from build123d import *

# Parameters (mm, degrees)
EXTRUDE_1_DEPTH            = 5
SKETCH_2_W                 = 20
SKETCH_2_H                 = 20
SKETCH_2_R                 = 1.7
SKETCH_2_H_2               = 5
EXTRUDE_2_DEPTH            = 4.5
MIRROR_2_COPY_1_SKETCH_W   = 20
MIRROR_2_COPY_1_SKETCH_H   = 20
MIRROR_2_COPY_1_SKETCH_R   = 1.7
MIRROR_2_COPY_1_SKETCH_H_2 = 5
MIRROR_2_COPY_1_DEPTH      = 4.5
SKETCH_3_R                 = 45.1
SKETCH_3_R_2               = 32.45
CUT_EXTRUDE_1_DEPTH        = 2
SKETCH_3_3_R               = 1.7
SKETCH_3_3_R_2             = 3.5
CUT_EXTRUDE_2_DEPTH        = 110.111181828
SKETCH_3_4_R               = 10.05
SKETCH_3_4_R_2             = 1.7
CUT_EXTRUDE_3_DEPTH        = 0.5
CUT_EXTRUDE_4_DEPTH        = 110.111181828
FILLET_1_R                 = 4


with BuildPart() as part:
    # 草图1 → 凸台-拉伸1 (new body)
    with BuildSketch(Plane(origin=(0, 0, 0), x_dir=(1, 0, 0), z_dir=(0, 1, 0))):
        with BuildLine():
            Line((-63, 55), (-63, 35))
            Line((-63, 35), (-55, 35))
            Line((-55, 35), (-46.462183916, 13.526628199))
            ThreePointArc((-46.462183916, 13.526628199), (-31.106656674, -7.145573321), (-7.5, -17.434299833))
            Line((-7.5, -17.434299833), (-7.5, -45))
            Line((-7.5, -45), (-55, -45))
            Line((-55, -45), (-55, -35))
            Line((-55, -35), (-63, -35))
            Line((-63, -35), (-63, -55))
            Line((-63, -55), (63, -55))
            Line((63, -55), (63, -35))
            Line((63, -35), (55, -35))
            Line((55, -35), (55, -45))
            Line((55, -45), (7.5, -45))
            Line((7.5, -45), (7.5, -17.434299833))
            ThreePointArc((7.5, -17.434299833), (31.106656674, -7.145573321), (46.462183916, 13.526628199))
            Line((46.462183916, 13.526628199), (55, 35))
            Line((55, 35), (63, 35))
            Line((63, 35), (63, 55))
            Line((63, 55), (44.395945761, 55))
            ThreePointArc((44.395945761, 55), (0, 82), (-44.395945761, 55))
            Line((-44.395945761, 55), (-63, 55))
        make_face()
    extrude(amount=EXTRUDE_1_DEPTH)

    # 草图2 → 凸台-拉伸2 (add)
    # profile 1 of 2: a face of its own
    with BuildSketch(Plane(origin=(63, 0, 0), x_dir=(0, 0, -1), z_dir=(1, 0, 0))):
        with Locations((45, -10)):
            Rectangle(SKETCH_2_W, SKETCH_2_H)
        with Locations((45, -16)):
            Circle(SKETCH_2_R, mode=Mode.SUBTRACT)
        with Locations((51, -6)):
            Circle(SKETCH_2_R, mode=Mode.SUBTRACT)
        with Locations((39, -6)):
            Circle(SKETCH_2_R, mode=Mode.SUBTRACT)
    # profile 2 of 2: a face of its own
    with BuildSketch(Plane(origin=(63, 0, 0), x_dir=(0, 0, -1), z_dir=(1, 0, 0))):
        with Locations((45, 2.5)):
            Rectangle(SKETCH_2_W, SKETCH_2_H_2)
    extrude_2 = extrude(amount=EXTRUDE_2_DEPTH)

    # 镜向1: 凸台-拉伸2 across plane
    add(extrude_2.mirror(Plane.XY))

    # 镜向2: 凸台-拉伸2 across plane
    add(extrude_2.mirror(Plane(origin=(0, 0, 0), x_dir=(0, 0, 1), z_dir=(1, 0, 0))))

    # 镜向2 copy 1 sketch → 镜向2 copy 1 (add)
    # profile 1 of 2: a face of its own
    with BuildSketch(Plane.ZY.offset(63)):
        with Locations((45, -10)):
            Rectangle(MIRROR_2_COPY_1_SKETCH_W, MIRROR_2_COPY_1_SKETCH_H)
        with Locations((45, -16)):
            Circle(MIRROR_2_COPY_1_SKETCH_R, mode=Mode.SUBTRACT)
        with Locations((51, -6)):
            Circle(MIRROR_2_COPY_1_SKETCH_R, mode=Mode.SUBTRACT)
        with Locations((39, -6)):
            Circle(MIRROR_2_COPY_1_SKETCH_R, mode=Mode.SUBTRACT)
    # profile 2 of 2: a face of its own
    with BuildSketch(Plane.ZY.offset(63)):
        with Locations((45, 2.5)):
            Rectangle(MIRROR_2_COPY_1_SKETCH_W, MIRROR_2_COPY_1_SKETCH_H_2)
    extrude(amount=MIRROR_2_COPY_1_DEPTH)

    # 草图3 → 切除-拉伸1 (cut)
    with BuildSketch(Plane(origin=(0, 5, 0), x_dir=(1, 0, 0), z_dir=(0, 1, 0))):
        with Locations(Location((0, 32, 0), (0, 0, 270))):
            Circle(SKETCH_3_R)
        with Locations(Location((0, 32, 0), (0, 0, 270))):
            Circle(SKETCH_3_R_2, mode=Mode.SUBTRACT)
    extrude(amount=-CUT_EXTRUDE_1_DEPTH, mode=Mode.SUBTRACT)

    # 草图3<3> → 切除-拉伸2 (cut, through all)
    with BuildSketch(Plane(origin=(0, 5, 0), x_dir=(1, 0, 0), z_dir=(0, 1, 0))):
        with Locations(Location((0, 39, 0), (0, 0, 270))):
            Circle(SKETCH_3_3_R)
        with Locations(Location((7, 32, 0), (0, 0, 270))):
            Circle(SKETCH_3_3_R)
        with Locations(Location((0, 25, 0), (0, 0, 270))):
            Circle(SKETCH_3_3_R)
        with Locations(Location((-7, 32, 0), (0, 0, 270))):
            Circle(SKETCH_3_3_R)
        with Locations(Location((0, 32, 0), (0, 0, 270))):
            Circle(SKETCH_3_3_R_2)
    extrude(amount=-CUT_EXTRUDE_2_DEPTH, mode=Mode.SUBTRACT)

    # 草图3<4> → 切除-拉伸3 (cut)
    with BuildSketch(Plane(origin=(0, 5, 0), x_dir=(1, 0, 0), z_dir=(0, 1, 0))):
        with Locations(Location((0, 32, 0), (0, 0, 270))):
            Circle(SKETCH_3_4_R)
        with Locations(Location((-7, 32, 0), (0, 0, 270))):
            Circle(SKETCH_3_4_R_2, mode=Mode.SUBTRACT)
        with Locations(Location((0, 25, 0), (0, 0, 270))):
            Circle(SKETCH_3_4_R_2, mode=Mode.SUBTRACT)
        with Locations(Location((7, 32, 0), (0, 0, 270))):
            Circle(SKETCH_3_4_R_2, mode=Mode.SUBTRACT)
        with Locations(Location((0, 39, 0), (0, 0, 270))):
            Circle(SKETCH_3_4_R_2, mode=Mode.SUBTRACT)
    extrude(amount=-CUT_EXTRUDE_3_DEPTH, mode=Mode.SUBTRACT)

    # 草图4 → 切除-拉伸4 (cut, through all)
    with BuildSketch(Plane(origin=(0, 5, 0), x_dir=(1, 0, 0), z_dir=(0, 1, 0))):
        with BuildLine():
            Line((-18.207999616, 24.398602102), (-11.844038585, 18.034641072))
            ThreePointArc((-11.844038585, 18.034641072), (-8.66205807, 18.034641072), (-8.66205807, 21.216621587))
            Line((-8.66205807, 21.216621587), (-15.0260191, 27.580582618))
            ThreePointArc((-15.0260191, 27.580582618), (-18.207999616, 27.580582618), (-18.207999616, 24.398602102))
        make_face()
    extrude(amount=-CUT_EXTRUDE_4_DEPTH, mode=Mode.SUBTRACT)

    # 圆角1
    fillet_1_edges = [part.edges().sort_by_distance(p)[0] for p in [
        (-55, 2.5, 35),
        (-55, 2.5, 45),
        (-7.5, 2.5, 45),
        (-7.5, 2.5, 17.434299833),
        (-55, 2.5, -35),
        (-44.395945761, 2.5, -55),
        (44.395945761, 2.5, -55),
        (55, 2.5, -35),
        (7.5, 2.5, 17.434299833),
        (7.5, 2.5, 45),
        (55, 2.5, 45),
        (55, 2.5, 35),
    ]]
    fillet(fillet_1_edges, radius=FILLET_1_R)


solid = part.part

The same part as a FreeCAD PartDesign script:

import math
import FreeCAD as App
import Part
import Sketcher

V = App.Vector
Q = App.Units.Quantity


def edges_at(feature, points):
    """Names of the edges that pass closest to the given points."""
    edges = feature.Shape.Edges
    near = lambda p: min(range(len(edges)), key=lambda i: edges[i].distToShape(Part.Vertex(*p))[0])
    return sorted({f"Edge{near(p) + 1}" for p in points})


def add_polygon(sketch, points):
    """Adds a closed chain of lines whose ends are joined by coincident constraints."""
    first, n = sketch.GeometryCount, len(points)
    for a, b in zip(points, points[1:] + points[:1]):
        sketch.addGeometry(Part.LineSegment(App.Vector(*a, 0), App.Vector(*b, 0)), False)
    for i in range(n):
        sketch.addConstraint(Sketcher.Constraint("Coincident", first + i, 2, first + (i + 1) % n, 1))

doc = App.newDocument("Part")
body = doc.addObject("PartDesign::Body", "Body")

# Sketch on XZ plane
sketch1 = body.newObject("Sketcher::SketchObject", "Sketch")
sketch1.AttachmentSupport = (doc.getObject("XZ_Plane"), [""])
sketch1.MapMode = "FlatFace"
sketch1.addGeometry(Part.LineSegment(V(-63, -55, 0), V(-63, -35, 0)), False)
sketch1.addGeometry(Part.LineSegment(V(-63, -35, 0), V(-55, -35, 0)), False)
sketch1.addGeometry(Part.LineSegment(V(-55, -35, 0), V(-46.462184, -13.526628, 0)), False)
sketch1.addGeometry(Part.ArcOfCircle(Part.Circle(V(0, -32, 0), V(0, 0, 1), 50), math.radians(98.626927), math.radians(158.317224)), False)
sketch1.addGeometry(Part.LineSegment(V(-7.5, 17.4343, 0), V(-7.5, 45, 0)), False)
sketch1.addGeometry(Part.LineSegment(V(-7.5, 45, 0), V(-55, 45, 0)), False)
sketch1.addGeometry(Part.LineSegment(V(-55, 45, 0), V(-55, 35, 0)), False)
sketch1.addGeometry(Part.LineSegment(V(-55, 35, 0), V(-63, 35, 0)), False)
sketch1.addGeometry(Part.LineSegment(V(-63, 35, 0), V(-63, 55, 0)), False)
sketch1.addGeometry(Part.LineSegment(V(-63, 55, 0), V(63, 55, 0)), False)
sketch1.addGeometry(Part.LineSegment(V(63, 55, 0), V(63, 35, 0)), False)
sketch1.addGeometry(Part.LineSegment(V(63, 35, 0), V(55, 35, 0)), False)
sketch1.addGeometry(Part.LineSegment(V(55, 35, 0), V(55, 45, 0)), False)
sketch1.addGeometry(Part.LineSegment(V(55, 45, 0), V(7.5, 45, 0)), False)
sketch1.addGeometry(Part.LineSegment(V(7.5, 45, 0), V(7.5, 17.4343, 0)), False)
sketch1.addGeometry(Part.ArcOfCircle(Part.Circle(V(0, -32, 0), V(0, 0, 1), 50), math.radians(21.682776), math.radians(81.373073)), False)
sketch1.addGeometry(Part.LineSegment(V(46.462184, -13.526628, 0), V(55, -35, 0)), False)
sketch1.addGeometry(Part.LineSegment(V(55, -35, 0), V(63, -35, 0)), False)
sketch1.addGeometry(Part.LineSegment(V(63, -35, 0), V(63, -55, 0)), False)
sketch1.addGeometry(Part.LineSegment(V(63, -55, 0), V(44.395946, -55, 0)), False)
sketch1.addGeometry(Part.ArcOfCircle(Part.Circle(V(0, -32, 0), V(0, 0, 1), 50), math.radians(-152.612892), math.radians(-27.387108)), False)
sketch1.addGeometry(Part.LineSegment(V(-44.395946, -55, 0), V(-63, -55, 0)), False)
sketch1.addConstraint(Sketcher.Constraint("Coincident", 0, 2, 1, 1))
sketch1.addConstraint(Sketcher.Constraint("Coincident", 1, 2, 2, 1))
sketch1.addConstraint(Sketcher.Constraint("Tangent", 2, 2, 3, 2))
sketch1.addConstraint(Sketcher.Constraint("Coincident", 3, 1, 4, 1))
sketch1.addConstraint(Sketcher.Constraint("Coincident", 4, 2, 5, 1))
sketch1.addConstraint(Sketcher.Constraint("Coincident", 5, 2, 6, 1))
sketch1.addConstraint(Sketcher.Constraint("Coincident", 6, 2, 7, 1))
sketch1.addConstraint(Sketcher.Constraint("Coincident", 7, 2, 8, 1))
sketch1.addConstraint(Sketcher.Constraint("Coincident", 8, 2, 9, 1))
sketch1.addConstraint(Sketcher.Constraint("Coincident", 9, 2, 10, 1))
sketch1.addConstraint(Sketcher.Constraint("Coincident", 10, 2, 11, 1))
sketch1.addConstraint(Sketcher.Constraint("Coincident", 11, 2, 12, 1))
sketch1.addConstraint(Sketcher.Constraint("Coincident", 12, 2, 13, 1))
sketch1.addConstraint(Sketcher.Constraint("Coincident", 13, 2, 14, 1))
sketch1.addConstraint(Sketcher.Constraint("Coincident", 14, 2, 15, 2))
sketch1.addConstraint(Sketcher.Constraint("Tangent", 15, 1, 16, 1))
sketch1.addConstraint(Sketcher.Constraint("Coincident", 16, 2, 17, 1))
sketch1.addConstraint(Sketcher.Constraint("Coincident", 17, 2, 18, 1))
sketch1.addConstraint(Sketcher.Constraint("Coincident", 18, 2, 19, 1))
sketch1.addConstraint(Sketcher.Constraint("Coincident", 19, 2, 20, 2))
sketch1.addConstraint(Sketcher.Constraint("Coincident", 20, 1, 21, 1))
sketch1.addConstraint(Sketcher.Constraint("Coincident", 21, 2, 0, 1))
sketch1.addConstraint(Sketcher.Constraint("Vertical", 0))
sketch1.addConstraint(Sketcher.Constraint("Horizontal", 1))
sketch1.addConstraint(Sketcher.Constraint("Vertical", 4))
sketch1.addConstraint(Sketcher.Constraint("Horizontal", 5))
sketch1.addConstraint(Sketcher.Constraint("Vertical", 6))
sketch1.addConstraint(Sketcher.Constraint("Horizontal", 7))
sketch1.addConstraint(Sketcher.Constraint("Vertical", 8))
sketch1.addConstraint(Sketcher.Constraint("Horizontal", 9))
sketch1.addConstraint(Sketcher.Constraint("Vertical", 10))
sketch1.addConstraint(Sketcher.Constraint("Horizontal", 11))
sketch1.addConstraint(Sketcher.Constraint("Vertical", 12))
sketch1.addConstraint(Sketcher.Constraint("Horizontal", 13))
sketch1.addConstraint(Sketcher.Constraint("Vertical", 14))
sketch1.addConstraint(Sketcher.Constraint("Horizontal", 17))
sketch1.addConstraint(Sketcher.Constraint("Vertical", 18))
sketch1.addConstraint(Sketcher.Constraint("Horizontal", 19))
sketch1.addConstraint(Sketcher.Constraint("Horizontal", 21))
sketch1.addConstraint(Sketcher.Constraint("Coincident", 15, 3, 3, 3))
sketch1.addConstraint(Sketcher.Constraint("Coincident", 20, 3, 3, 3))
sketch1.addConstraint(Sketcher.Constraint("Equal", 3, 15))
sketch1.addConstraint(Sketcher.Constraint("Equal", 15, 20))
sketch1.addConstraint(Sketcher.Constraint("Symmetric", 0, 2, 10, 2, -1, 1))
sketch1.addConstraint(Sketcher.Constraint("Symmetric", 6, 2, 16, 2, -1, 1))
sketch1.addConstraint(Sketcher.Constraint("Symmetric", 8, 2, 18, 2, -1, 1))
sketch1.addConstraint(Sketcher.Constraint("Symmetric", 7, 2, 10, 2, -2))
sketch1.addConstraint(Sketcher.Constraint("Symmetric", 5, 2, 12, 2, -2))
sketch1.addConstraint(Sketcher.Constraint("Symmetric", 3, 1, 14, 2, -2))
sketch1.addConstraint(Sketcher.Constraint("Horizontal", 2, 2, 15, 1))
sketch1.addConstraint(Sketcher.Constraint("Horizontal", 19, 2, 20, 1))
sketch1.addConstraint(Sketcher.Constraint("Radius", 3, Q("50 mm")))
sketch1.addConstraint(Sketcher.Constraint("DistanceX", 1, 1, 1, 2, Q("8 mm")))
sketch1.addConstraint(Sketcher.Constraint("DistanceX", 9, 1, 9, 2, Q("126 mm")))
sketch1.addConstraint(Sketcher.Constraint("DistanceY", 0, 1, 0, 2, Q("20 mm")))
sketch1.addConstraint(Sketcher.Constraint("DistanceY", 6, 2, 6, 1, Q("10 mm")))
sketch1.addConstraint(Sketcher.Constraint("DistanceX", 5, 2, 5, 1, Q("47.5 mm")))
sketch1.addConstraint(Sketcher.Constraint("DistanceY", 3, 3, -1, 1, Q("32 mm")))
sketch1.addConstraint(Sketcher.Constraint("DistanceY", 0, 2, -1, 1, Q("35 mm")))
pad1 = body.newObject("PartDesign::Pad", "Pad")
pad1.Profile = sketch1
pad1.Length = 5
pad1.Reversed = True

# Sketch on YZ plane
sketch2 = body.newObject("Sketcher::SketchObject", "Sketch001")
sketch2.AttachmentSupport = (doc.getObject("YZ_Plane"), [""])
sketch2.MapMode = "FlatFace"
sketch2.AttachmentOffset = App.Placement(V(0, 0, 63), App.Rotation())
add_polygon(sketch2, [(-20, -35), (-20, -55), (5, -55), (5, -35)])  # lines 0-3
sketch2.addGeometry(Part.Circle(V(-16, -45, 0), V(0, 0, 1), 1.7), False)  # 4
sketch2.addGeometry(Part.Circle(V(-6, -39, 0), V(0, 0, 1), 1.7), False)  # 5
sketch2.addGeometry(Part.Circle(V(-6, -51, 0), V(0, 0, 1), 1.7), False)  # 6
sketch2.addConstraint(Sketcher.Constraint("Vertical", 0))
sketch2.addConstraint(Sketcher.Constraint("Horizontal", 1))
sketch2.addConstraint(Sketcher.Constraint("Vertical", 2))
sketch2.addConstraint(Sketcher.Constraint("Horizontal", 3))
sketch2.addConstraint(Sketcher.Constraint("Equal", 4, 5))
sketch2.addConstraint(Sketcher.Constraint("Equal", 5, 6))
sketch2.addConstraint(Sketcher.Constraint("Vertical", 5, 3, 6, 3))
sketch2.addConstraint(Sketcher.Constraint("Diameter", 4, Q("3.4 mm")))
sketch2.addConstraint(Sketcher.Constraint("DistanceX", 1, 1, 1, 2, Q("25 mm")))
sketch2.addConstraint(Sketcher.Constraint("DistanceY", 0, 2, 0, 1, Q("20 mm")))
sketch2.addConstraint(Sketcher.Constraint("DistanceX", 4, 3, -1, 1, Q("16 mm")))
sketch2.addConstraint(Sketcher.Constraint("DistanceY", 4, 3, -1, 1, Q("45 mm")))
sketch2.addConstraint(Sketcher.Constraint("DistanceX", 5, 3, -1, 1, Q("6 mm")))
sketch2.addConstraint(Sketcher.Constraint("DistanceY", 5, 3, -1, 1, Q("39 mm")))
sketch2.addConstraint(Sketcher.Constraint("DistanceY", 6, 3, -1, 1, Q("51 mm")))
sketch2.addConstraint(Sketcher.Constraint("DistanceX", 0, 2, -1, 1, Q("20 mm")))
sketch2.addConstraint(Sketcher.Constraint("DistanceY", 0, 2, -1, 1, Q("55 mm")))
pad2 = body.newObject("PartDesign::Pad", "Pad001")
pad2.Profile = sketch2
pad2.Length = 4.5
doc.recompute()

mirrored = body.newObject("PartDesign::Mirrored", "Mirrored")
mirrored.Originals = [pad2]
mirrored.MirrorPlane = (doc.getObject("XY_Plane"), [""])
body.Tip = mirrored
doc.recompute()

mirrored2 = body.newObject("PartDesign::Mirrored", "Mirrored001")
mirrored2.Originals = [pad2]
mirrored2.MirrorPlane = (doc.getObject("YZ_Plane"), [""])
body.Tip = mirrored2

# Sketch on YZ plane
sketch3 = body.newObject("Sketcher::SketchObject", "Sketch002")
sketch3.AttachmentSupport = (doc.getObject("YZ_Plane"), [""])
sketch3.MapMode = "FlatFace"
sketch3.AttachmentOffset = App.Placement(V(0, 0, -63), App.Rotation())
add_polygon(sketch3, [(-20, 35), (-20, 55), (5, 55), (5, 35)])  # lines 0-3
sketch3.addGeometry(Part.Circle(V(-16, 45, 0), V(0, 0, 1), 1.7), False)  # 4
sketch3.addGeometry(Part.Circle(V(-6, 39, 0), V(0, 0, 1), 1.7), False)  # 5
sketch3.addGeometry(Part.Circle(V(-6, 51, 0), V(0, 0, 1), 1.7), False)  # 6
sketch3.addConstraint(Sketcher.Constraint("Vertical", 0))
sketch3.addConstraint(Sketcher.Constraint("Horizontal", 1))
sketch3.addConstraint(Sketcher.Constraint("Vertical", 2))
sketch3.addConstraint(Sketcher.Constraint("Horizontal", 3))
sketch3.addConstraint(Sketcher.Constraint("Equal", 4, 5))
sketch3.addConstraint(Sketcher.Constraint("Equal", 5, 6))
sketch3.addConstraint(Sketcher.Constraint("Vertical", 5, 3, 6, 3))
sketch3.addConstraint(Sketcher.Constraint("Diameter", 4, Q("3.4 mm")))
sketch3.addConstraint(Sketcher.Constraint("DistanceX", 1, 1, 1, 2, Q("25 mm")))
sketch3.addConstraint(Sketcher.Constraint("DistanceY", 0, 1, 0, 2, Q("20 mm")))
sketch3.addConstraint(Sketcher.Constraint("DistanceX", 4, 3, -1, 1, Q("16 mm")))
sketch3.addConstraint(Sketcher.Constraint("DistanceY", -1, 1, 4, 3, Q("45 mm")))
sketch3.addConstraint(Sketcher.Constraint("DistanceX", 5, 3, -1, 1, Q("6 mm")))
sketch3.addConstraint(Sketcher.Constraint("DistanceY", -1, 1, 5, 3, Q("39 mm")))
sketch3.addConstraint(Sketcher.Constraint("DistanceY", -1, 1, 6, 3, Q("51 mm")))
sketch3.addConstraint(Sketcher.Constraint("DistanceX", 0, 2, -1, 1, Q("20 mm")))
sketch3.addConstraint(Sketcher.Constraint("DistanceY", -1, 1, 0, 2, Q("55 mm")))
pad3 = body.newObject("PartDesign::Pad", "Pad002")
pad3.Profile = sketch3
pad3.Length = 4.5
pad3.Reversed = True

# Sketch on XZ plane
sketch4 = body.newObject("Sketcher::SketchObject", "Sketch003")
sketch4.AttachmentSupport = (doc.getObject("XZ_Plane"), [""])
sketch4.MapMode = "FlatFace"
sketch4.AttachmentOffset = App.Placement(V(0, 0, -5), App.Rotation())
sketch4.addGeometry(Part.Circle(V(0, -32, 0), V(0, 0, 1), 45.1), False)
sketch4.addGeometry(Part.Circle(V(0, -32, 0), V(0, 0, 1), 32.45), False)
sketch4.addConstraint(Sketcher.Constraint("Coincident", 1, 3, 0, 3))
sketch4.addConstraint(Sketcher.Constraint("PointOnObject", 0, 3, -2))
sketch4.addConstraint(Sketcher.Constraint("Diameter", 0, Q("90.2 mm")))
sketch4.addConstraint(Sketcher.Constraint("Diameter", 1, Q("64.9 mm")))
sketch4.addConstraint(Sketcher.Constraint("DistanceY", 0, 3, -1, 1, Q("32 mm")))
pocket1 = body.newObject("PartDesign::Pocket", "Pocket")
pocket1.Profile = sketch4
pocket1.Length = 2
pocket1.Reversed = True

# Sketch on XZ plane
sketch5 = body.newObject("Sketcher::SketchObject", "Sketch004")
sketch5.AttachmentSupport = (doc.getObject("XZ_Plane"), [""])
sketch5.MapMode = "FlatFace"
sketch5.AttachmentOffset = App.Placement(V(0, 0, -5), App.Rotation())
sketch5.addGeometry(Part.Circle(V(0, -39, 0), V(0, 0, 1), 1.7), False)
sketch5.addGeometry(Part.Circle(V(7, -32, 0), V(0, 0, 1), 1.7), False)
sketch5.addGeometry(Part.Circle(V(0, -25, 0), V(0, 0, 1), 1.7), False)
sketch5.addGeometry(Part.Circle(V(-7, -32, 0), V(0, 0, 1), 1.7), False)
sketch5.addGeometry(Part.Circle(V(0, -32, 0), V(0, 0, 1), 3.5), False)
sketch5.addConstraint(Sketcher.Constraint("Equal", 0, 1))
sketch5.addConstraint(Sketcher.Constraint("Equal", 1, 2))
sketch5.addConstraint(Sketcher.Constraint("Equal", 2, 3))
sketch5.addConstraint(Sketcher.Constraint("Symmetric", 1, 3, 3, 3, -2))
sketch5.addConstraint(Sketcher.Constraint("PointOnObject", 0, 3, -2))
sketch5.addConstraint(Sketcher.Constraint("PointOnObject", 2, 3, -2))
sketch5.addConstraint(Sketcher.Constraint("PointOnObject", 4, 3, -2))
sketch5.addConstraint(Sketcher.Constraint("Horizontal", 3, 3, 4, 3))
sketch5.addConstraint(Sketcher.Constraint("Diameter", 4, Q("7 mm")))
sketch5.addConstraint(Sketcher.Constraint("Diameter", 0, Q("3.4 mm")))
sketch5.addConstraint(Sketcher.Constraint("DistanceY", 0, 3, -1, 1, Q("39 mm")))
sketch5.addConstraint(Sketcher.Constraint("DistanceX", -1, 1, 1, 3, Q("7 mm")))
sketch5.addConstraint(Sketcher.Constraint("DistanceY", 1, 3, -1, 1, Q("32 mm")))
sketch5.addConstraint(Sketcher.Constraint("DistanceY", 2, 3, -1, 1, Q("25 mm")))
pocket2 = body.newObject("PartDesign::Pocket", "Pocket001")
pocket2.Profile = sketch5
pocket2.Type = "ThroughAll"
pocket2.Reversed = True

# Sketch on XZ plane
sketch6 = body.newObject("Sketcher::SketchObject", "Sketch005")
sketch6.AttachmentSupport = (doc.getObject("XZ_Plane"), [""])
sketch6.MapMode = "FlatFace"
sketch6.AttachmentOffset = App.Placement(V(0, 0, -5), App.Rotation())
sketch6.addGeometry(Part.Circle(V(0, -32, 0), V(0, 0, 1), 10.05), False)
sketch6.addGeometry(Part.Circle(V(0, -39, 0), V(0, 0, 1), 1.7), False)
sketch6.addGeometry(Part.Circle(V(-7, -32, 0), V(0, 0, 1), 1.7), False)
sketch6.addGeometry(Part.Circle(V(0, -25, 0), V(0, 0, 1), 1.7), False)
sketch6.addGeometry(Part.Circle(V(7, -32, 0), V(0, 0, 1), 1.7), False)
sketch6.addConstraint(Sketcher.Constraint("Equal", 1, 2))
sketch6.addConstraint(Sketcher.Constraint("Equal", 2, 3))
sketch6.addConstraint(Sketcher.Constraint("Equal", 3, 4))
sketch6.addConstraint(Sketcher.Constraint("Symmetric", 2, 3, 4, 3, -2))
sketch6.addConstraint(Sketcher.Constraint("PointOnObject", 0, 3, -2))
sketch6.addConstraint(Sketcher.Constraint("PointOnObject", 1, 3, -2))
sketch6.addConstraint(Sketcher.Constraint("PointOnObject", 3, 3, -2))
sketch6.addConstraint(Sketcher.Constraint("Horizontal", 0, 3, 2, 3))
sketch6.addConstraint(Sketcher.Constraint("Diameter", 0, Q("20.1 mm")))
sketch6.addConstraint(Sketcher.Constraint("Diameter", 1, Q("3.4 mm")))
sketch6.addConstraint(Sketcher.Constraint("DistanceY", 0, 3, -1, 1, Q("32 mm")))
sketch6.addConstraint(Sketcher.Constraint("DistanceY", 1, 3, -1, 1, Q("39 mm")))
sketch6.addConstraint(Sketcher.Constraint("DistanceX", 2, 3, -1, 1, Q("7 mm")))
sketch6.addConstraint(Sketcher.Constraint("DistanceY", 3, 3, -1, 1, Q("25 mm")))
pocket3 = body.newObject("PartDesign::Pocket", "Pocket002")
pocket3.Profile = sketch6
pocket3.Length = 0.5
pocket3.Reversed = True

# Sketch on XZ plane
sketch7 = body.newObject("Sketcher::SketchObject", "Sketch006")
sketch7.AttachmentSupport = (doc.getObject("XZ_Plane"), [""])
sketch7.MapMode = "FlatFace"
sketch7.AttachmentOffset = App.Placement(V(0, 0, -5), App.Rotation())
sketch7.addGeometry(Part.LineSegment(V(-18.208, -24.398602, 0), V(-11.844039, -18.034641, 0)), False)
sketch7.addGeometry(Part.ArcOfCircle(Part.Circle(V(-10.253048, -19.625631, 0), V(0, 0, 1), 2.25), math.radians(-45), math.radians(135)), False)
sketch7.addGeometry(Part.LineSegment(V(-8.662058, -21.216622, 0), V(-15.026019, -27.580583, 0)), False)
sketch7.addGeometry(Part.ArcOfCircle(Part.Circle(V(-16.617009, -25.989592, 0), V(0, 0, 1), 2.25), math.radians(135), math.radians(315)), False)
sketch7.addConstraint(Sketcher.Constraint("Tangent", 0, 2, 1, 2))
sketch7.addConstraint(Sketcher.Constraint("Tangent", 1, 1, 2, 1))
sketch7.addConstraint(Sketcher.Constraint("Tangent", 2, 2, 3, 2))
sketch7.addConstraint(Sketcher.Constraint("Tangent", 3, 1, 0, 1))
sketch7.addConstraint(Sketcher.Constraint("Equal", 1, 3))
sketch7.addConstraint(Sketcher.Constraint("Angle", 0, Q("45 deg")))
sketch7.addConstraint(Sketcher.Constraint("Radius", 1, Q("2.25 mm")))
sketch7.addConstraint(Sketcher.Constraint("Distance", 0, Q("9 mm")))
sketch7.addConstraint(Sketcher.Constraint("DistanceX", 3, 1, -1, 1, Q("18.208 mm")))
sketch7.addConstraint(Sketcher.Constraint("DistanceY", 1, 3, -1, 1, Q("19.625631 mm")))
pocket4 = body.newObject("PartDesign::Pocket", "Pocket003")
pocket4.Profile = sketch7
pocket4.Type = "ThroughAll"
pocket4.Reversed = True
doc.recompute()

fillet = body.newObject("PartDesign::Fillet", "Fillet")
fillet.Base = (pocket4, edges_at(pocket4, [
    (-55, 2.5, 35),
    (-55, 2.5, 45),
    (-7.5, 2.5, 45),
    (-7.5, 2.5, 17.434),
    (-55, 2.5, -35),
    (-44.396, 2.5, -55),
    (44.396, 2.5, -55),
    (55, 2.5, -35),
    (7.5, 2.5, 17.434),
    (7.5, 2.5, 45),
    (55, 2.5, 45),
    (55, 2.5, 35),
]))
fillet.Radius = 4

doc.recompute()
